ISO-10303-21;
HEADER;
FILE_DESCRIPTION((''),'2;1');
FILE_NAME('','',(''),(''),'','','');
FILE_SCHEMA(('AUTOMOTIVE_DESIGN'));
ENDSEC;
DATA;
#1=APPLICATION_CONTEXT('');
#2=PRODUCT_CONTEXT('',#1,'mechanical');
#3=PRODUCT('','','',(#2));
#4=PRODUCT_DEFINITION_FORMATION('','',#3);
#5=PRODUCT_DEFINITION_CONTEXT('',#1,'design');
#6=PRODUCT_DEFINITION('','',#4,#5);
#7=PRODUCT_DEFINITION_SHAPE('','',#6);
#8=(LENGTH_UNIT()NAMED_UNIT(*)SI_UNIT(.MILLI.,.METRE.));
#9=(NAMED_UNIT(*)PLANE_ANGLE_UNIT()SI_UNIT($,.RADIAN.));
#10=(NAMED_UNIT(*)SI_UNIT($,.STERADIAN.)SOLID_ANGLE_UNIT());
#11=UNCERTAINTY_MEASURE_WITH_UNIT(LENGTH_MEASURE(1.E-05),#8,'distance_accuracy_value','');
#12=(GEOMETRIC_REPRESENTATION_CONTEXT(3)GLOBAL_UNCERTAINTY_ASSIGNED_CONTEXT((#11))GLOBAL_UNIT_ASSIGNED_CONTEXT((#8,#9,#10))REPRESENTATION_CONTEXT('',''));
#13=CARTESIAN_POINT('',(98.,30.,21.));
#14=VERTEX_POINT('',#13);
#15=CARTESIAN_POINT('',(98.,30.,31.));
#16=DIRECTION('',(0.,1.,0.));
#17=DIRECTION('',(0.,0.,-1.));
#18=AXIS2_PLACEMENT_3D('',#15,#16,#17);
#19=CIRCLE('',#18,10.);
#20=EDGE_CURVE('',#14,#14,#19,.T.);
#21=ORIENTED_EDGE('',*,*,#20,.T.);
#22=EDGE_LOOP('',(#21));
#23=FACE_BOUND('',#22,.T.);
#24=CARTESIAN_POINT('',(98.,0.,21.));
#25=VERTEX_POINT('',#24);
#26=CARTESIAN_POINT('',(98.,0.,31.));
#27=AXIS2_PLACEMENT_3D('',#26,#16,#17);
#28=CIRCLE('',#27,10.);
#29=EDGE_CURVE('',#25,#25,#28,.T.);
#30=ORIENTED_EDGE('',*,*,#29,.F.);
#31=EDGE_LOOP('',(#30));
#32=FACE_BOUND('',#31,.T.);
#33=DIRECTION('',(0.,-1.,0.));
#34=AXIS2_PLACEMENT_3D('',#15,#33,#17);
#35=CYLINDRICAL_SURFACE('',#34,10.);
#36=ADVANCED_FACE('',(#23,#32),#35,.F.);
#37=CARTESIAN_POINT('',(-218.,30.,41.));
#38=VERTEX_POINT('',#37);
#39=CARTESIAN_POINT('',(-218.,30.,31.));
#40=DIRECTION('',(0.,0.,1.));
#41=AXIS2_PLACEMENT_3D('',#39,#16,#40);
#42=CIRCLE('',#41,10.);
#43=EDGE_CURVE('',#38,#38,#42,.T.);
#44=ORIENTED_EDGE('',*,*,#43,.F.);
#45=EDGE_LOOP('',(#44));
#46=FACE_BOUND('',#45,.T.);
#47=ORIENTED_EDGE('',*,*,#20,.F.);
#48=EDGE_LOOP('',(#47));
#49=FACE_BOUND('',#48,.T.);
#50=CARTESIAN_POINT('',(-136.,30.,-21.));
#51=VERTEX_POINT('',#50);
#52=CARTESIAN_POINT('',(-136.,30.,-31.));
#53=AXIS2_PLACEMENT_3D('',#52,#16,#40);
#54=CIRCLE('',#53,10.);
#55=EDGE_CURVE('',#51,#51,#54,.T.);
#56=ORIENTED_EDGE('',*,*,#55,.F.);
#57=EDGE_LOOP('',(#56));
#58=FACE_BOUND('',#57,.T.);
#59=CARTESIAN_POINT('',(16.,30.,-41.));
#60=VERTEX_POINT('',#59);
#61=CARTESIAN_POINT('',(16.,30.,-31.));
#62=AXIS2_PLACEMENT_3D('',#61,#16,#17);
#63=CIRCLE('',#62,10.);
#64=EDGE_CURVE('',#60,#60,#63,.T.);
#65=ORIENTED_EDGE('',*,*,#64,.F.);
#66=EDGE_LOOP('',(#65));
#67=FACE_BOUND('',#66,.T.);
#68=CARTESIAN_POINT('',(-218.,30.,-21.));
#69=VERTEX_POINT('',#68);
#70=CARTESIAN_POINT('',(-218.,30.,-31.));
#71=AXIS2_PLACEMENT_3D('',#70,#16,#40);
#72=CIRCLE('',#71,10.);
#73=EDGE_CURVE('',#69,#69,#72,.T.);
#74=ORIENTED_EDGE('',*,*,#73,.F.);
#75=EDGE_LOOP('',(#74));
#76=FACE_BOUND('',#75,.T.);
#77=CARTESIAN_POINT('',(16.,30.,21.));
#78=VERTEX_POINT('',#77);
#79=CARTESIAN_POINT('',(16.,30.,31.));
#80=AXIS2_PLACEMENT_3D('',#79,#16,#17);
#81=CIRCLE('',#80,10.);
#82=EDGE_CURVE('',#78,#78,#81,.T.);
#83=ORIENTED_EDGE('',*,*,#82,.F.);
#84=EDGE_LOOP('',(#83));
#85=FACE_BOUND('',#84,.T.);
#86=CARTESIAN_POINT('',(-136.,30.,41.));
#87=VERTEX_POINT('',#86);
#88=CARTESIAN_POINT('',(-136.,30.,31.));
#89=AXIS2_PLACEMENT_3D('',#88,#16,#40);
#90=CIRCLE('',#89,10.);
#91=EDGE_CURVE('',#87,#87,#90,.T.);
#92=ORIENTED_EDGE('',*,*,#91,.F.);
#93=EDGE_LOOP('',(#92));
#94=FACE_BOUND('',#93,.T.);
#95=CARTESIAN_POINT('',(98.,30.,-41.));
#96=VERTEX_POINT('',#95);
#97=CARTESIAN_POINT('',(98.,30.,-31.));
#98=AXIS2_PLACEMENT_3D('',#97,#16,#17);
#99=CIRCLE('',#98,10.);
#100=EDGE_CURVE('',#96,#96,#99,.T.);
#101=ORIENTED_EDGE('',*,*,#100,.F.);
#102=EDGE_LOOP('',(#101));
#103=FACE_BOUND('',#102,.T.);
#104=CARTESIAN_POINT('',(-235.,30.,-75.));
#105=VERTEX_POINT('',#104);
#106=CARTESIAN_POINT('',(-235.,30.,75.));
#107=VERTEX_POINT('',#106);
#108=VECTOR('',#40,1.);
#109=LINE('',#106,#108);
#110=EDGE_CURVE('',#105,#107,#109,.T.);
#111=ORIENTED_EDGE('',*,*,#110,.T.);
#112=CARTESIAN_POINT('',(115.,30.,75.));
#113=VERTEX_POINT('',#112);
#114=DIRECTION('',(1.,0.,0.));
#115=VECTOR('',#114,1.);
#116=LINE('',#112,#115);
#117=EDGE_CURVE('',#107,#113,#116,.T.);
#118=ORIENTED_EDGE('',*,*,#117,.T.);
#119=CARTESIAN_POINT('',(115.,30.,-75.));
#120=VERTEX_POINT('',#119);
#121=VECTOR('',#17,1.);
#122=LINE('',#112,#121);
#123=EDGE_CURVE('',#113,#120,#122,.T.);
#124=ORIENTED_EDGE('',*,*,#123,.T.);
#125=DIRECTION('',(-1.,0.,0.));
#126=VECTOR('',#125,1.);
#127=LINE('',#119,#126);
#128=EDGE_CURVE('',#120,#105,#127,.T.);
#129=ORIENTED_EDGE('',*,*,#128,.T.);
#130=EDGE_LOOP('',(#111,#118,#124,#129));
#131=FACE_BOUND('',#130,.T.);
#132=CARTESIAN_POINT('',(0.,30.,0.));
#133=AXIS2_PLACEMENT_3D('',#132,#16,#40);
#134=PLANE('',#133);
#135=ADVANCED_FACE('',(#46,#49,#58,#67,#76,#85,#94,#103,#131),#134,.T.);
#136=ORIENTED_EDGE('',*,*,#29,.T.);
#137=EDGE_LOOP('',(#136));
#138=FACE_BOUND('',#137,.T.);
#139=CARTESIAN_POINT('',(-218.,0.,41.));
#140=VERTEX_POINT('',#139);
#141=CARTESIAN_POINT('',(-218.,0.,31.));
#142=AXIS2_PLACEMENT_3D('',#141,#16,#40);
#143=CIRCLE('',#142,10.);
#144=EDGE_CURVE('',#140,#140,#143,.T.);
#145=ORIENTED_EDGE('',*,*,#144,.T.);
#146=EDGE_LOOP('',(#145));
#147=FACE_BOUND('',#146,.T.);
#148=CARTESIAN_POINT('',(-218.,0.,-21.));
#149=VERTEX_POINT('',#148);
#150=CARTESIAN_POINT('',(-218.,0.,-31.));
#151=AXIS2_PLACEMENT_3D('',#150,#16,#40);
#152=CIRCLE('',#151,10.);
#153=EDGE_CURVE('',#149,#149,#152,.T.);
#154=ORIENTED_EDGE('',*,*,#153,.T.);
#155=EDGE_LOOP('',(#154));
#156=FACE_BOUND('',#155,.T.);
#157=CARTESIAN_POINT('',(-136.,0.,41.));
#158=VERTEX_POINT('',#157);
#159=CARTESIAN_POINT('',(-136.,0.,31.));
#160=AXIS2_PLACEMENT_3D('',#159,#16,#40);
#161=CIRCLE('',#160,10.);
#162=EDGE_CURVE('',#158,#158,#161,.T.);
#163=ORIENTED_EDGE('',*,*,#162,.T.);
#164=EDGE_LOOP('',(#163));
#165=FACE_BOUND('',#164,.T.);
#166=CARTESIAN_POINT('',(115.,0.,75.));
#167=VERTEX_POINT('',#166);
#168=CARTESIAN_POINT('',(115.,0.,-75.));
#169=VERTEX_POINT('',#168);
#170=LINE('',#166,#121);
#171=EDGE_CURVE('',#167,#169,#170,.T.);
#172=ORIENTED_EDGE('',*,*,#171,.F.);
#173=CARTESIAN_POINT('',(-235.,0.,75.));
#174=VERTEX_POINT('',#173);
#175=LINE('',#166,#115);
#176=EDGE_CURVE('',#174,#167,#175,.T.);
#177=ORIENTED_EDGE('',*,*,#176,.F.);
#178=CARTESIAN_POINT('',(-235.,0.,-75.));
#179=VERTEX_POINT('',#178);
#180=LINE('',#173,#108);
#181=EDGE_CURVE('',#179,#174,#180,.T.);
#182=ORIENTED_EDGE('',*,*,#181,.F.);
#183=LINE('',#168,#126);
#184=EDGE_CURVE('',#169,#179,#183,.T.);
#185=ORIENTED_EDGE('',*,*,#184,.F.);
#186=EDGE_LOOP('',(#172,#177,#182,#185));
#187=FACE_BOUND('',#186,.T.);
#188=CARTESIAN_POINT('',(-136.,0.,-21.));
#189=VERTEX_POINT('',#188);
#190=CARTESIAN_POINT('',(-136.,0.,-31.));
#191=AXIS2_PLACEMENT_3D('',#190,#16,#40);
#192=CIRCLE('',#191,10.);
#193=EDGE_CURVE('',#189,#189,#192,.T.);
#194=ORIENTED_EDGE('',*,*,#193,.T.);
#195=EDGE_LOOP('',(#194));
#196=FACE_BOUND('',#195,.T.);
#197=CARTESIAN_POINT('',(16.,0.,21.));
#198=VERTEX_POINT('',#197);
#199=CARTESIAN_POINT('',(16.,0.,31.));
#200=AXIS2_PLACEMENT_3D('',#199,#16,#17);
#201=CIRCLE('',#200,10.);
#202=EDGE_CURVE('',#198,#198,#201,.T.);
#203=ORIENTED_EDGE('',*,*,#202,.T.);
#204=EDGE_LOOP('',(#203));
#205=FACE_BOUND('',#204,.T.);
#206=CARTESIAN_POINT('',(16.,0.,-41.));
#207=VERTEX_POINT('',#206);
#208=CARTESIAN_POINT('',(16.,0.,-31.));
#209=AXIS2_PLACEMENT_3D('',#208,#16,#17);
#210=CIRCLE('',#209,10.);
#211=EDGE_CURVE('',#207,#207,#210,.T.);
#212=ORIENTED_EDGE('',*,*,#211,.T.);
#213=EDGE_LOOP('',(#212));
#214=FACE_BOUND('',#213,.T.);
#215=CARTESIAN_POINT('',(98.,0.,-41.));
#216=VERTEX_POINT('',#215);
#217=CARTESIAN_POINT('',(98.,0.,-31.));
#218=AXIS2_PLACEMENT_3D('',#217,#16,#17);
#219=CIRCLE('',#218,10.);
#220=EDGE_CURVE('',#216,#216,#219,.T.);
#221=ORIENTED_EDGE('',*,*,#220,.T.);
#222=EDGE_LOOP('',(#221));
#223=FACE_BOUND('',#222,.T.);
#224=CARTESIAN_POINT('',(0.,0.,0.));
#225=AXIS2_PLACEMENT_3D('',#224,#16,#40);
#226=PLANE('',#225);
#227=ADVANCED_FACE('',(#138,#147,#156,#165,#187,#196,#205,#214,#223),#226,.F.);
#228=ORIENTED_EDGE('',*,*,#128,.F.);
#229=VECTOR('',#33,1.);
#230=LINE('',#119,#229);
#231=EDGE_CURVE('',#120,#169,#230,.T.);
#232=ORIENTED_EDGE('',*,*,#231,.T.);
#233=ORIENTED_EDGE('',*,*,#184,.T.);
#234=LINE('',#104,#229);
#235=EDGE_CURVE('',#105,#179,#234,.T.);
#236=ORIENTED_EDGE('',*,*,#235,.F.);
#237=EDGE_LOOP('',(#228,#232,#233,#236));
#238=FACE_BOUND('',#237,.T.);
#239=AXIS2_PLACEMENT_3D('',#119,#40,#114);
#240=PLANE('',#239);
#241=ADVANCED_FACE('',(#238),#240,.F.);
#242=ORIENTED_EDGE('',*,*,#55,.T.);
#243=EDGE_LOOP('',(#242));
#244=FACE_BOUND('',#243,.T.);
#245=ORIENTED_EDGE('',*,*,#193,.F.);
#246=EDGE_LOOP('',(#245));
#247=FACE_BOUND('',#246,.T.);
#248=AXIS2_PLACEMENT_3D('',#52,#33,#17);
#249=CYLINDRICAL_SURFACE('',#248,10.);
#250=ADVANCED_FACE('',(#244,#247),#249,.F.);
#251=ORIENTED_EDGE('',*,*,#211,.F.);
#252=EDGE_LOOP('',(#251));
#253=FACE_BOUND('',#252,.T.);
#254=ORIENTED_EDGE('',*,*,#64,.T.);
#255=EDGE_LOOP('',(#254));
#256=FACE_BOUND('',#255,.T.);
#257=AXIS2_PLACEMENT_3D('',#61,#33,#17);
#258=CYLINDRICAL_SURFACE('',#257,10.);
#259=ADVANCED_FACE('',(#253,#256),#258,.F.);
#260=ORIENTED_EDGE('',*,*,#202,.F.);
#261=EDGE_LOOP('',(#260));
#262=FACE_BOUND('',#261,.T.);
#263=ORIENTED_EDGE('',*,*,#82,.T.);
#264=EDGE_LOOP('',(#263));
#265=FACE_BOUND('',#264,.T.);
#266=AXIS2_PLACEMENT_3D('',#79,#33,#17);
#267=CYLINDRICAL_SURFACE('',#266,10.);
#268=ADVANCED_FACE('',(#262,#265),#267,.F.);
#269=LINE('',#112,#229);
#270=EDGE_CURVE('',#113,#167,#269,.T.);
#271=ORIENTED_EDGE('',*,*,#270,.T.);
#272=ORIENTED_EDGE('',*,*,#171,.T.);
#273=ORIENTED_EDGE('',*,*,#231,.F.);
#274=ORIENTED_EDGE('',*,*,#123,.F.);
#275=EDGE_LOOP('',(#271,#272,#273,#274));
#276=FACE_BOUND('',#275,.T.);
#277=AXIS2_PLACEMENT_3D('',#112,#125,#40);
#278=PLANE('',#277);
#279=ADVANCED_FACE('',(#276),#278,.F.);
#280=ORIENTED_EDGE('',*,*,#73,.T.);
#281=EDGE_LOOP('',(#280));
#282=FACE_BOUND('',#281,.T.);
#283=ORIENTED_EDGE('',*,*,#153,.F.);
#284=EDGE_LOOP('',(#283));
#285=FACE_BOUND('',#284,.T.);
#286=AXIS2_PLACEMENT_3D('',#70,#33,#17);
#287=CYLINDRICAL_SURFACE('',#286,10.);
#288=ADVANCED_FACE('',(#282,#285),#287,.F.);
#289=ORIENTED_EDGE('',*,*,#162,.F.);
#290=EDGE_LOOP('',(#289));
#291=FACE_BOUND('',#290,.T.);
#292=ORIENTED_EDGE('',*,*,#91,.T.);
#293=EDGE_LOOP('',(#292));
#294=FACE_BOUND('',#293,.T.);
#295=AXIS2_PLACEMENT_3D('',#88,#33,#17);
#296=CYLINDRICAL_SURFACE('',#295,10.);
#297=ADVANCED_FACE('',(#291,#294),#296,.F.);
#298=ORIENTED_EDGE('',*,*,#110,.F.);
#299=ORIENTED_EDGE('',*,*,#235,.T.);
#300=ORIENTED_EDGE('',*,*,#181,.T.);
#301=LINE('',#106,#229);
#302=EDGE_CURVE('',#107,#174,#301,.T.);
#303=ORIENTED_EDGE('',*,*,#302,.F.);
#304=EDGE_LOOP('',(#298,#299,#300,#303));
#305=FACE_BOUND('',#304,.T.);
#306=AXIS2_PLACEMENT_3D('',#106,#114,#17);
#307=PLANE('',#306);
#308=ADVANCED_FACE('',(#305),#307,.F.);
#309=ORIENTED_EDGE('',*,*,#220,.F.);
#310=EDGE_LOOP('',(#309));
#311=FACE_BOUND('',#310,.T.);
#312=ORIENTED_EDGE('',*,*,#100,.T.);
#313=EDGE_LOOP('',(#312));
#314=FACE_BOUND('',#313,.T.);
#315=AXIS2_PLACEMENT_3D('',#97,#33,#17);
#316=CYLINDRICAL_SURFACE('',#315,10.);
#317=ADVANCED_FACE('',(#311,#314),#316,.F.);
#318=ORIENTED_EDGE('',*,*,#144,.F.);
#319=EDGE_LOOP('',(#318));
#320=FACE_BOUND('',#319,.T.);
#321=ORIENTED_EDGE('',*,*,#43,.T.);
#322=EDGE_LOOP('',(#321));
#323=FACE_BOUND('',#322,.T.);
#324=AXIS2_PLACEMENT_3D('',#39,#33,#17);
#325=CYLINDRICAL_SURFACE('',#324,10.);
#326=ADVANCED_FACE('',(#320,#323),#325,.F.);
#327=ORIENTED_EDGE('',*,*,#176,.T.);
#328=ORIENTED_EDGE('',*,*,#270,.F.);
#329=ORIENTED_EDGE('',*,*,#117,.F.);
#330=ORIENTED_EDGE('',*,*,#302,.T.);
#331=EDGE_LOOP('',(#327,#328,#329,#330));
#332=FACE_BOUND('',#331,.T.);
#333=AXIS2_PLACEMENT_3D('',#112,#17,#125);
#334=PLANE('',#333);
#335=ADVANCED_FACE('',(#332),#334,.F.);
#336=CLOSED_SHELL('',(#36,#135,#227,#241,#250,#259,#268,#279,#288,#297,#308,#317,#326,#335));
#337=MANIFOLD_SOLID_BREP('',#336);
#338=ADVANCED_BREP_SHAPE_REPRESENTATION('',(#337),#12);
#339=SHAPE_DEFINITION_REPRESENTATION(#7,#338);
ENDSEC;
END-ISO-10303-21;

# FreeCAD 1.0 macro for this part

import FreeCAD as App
import Part
import Sketcher

V = App.Vector

doc = App.newDocument("Part")
body = doc.addObject("PartDesign::Body", "Body")

sketch1 = body.newObject("Sketcher::SketchObject", "Sketch")
sketch1.AttachmentSupport = (doc.getObject("XZ_Plane"), [""])
sketch1.MapMode = "FlatFace"
sketch1.addGeometry([
    Part.LineSegment(V(-235, -75, 0), V(-235, 75, 0)),
    Part.LineSegment(V(-235, 75, 0), V(115, 75, 0)),
    Part.LineSegment(V(115, 75, 0), V(115, -75, 0)),
    Part.LineSegment(V(115, -75, 0), V(-235, -75, 0)),
    Part.Circle(V(-218, 31, 0), V(0, 0, 1), 10),
    Part.Circle(V(-136, 31, 0), V(0, 0, 1), 10),
    Part.Circle(V(16, 31, 0), V(0, 0, 1), 10),
    Part.Circle(V(98, 31, 0), V(0, 0, 1), 10),
    Part.Circle(V(-218, -31, 0), V(0, 0, 1), 10),
    Part.Circle(V(-136, -31, 0), V(0, 0, 1), 10),
    Part.Circle(V(16, -31, 0), V(0, 0, 1), 10),
    Part.Circle(V(98, -31, 0), V(0, 0, 1), 10),
], False)
sketch1.addConstraint([
    Sketcher.Constraint("Coincident", 0, 2, 1, 1),
    Sketcher.Constraint("Coincident", 1, 2, 2, 1),
    Sketcher.Constraint("Coincident", 2, 2, 3, 1),
    Sketcher.Constraint("Coincident", 3, 2, 0, 1),
    Sketcher.Constraint("Vertical", 0),
    Sketcher.Constraint("Horizontal", 1),
    Sketcher.Constraint("Vertical", 2),
    Sketcher.Constraint("Horizontal", 3),
    Sketcher.Constraint("Equal", 4, 5),
    Sketcher.Constraint("Equal", 5, 6),
    Sketcher.Constraint("Equal", 6, 7),
    Sketcher.Constraint("Equal", 7, 8),
    Sketcher.Constraint("Equal", 8, 9),
    Sketcher.Constraint("Equal", 9, 10),
    Sketcher.Constraint("Equal", 10, 11),
    Sketcher.Constraint("Symmetric", 4, 3, 8, 3, -1),
    Sketcher.Constraint("Symmetric", 5, 3, 9, 3, -1),
    Sketcher.Constraint("Symmetric", 6, 3, 10, 3, -1),
    Sketcher.Constraint("Symmetric", 7, 3, 11, 3, -1),
    Sketcher.Constraint("Horizontal", 4, 3, 5, 3),
    Sketcher.Constraint("Horizontal", 5, 3, 6, 3),
    Sketcher.Constraint("Horizontal", 6, 3, 7, 3),
    Sketcher.Constraint("Diameter", 4, 20.0),
    Sketcher.Constraint("DistanceX", 1, 1, 1, 2, 350.0),
    Sketcher.Constraint("DistanceY", 0, 1, 0, 2, 150.0),
    Sketcher.Constraint("DistanceX", 4, 3, -1, 1, 218.0),
    Sketcher.Constraint("DistanceY", -1, 1, 4, 3, 31.0),
    Sketcher.Constraint("DistanceX", 5, 3, -1, 1, 136.0),
    Sketcher.Constraint("DistanceX", -1, 1, 6, 3, 16.0),
    Sketcher.Constraint("DistanceX", -1, 1, 7, 3, 98.0),
    Sketcher.Constraint("DistanceX", 0, 2, -1, 1, 235.0),
    Sketcher.Constraint("DistanceY", -1, 1, 0, 2, 75.0),
])
pad1 = body.newObject("PartDesign::Pad", "Pad")
pad1.Profile = sketch1
pad1.Length = 30
pad1.Reversed = True

doc.recompute()
